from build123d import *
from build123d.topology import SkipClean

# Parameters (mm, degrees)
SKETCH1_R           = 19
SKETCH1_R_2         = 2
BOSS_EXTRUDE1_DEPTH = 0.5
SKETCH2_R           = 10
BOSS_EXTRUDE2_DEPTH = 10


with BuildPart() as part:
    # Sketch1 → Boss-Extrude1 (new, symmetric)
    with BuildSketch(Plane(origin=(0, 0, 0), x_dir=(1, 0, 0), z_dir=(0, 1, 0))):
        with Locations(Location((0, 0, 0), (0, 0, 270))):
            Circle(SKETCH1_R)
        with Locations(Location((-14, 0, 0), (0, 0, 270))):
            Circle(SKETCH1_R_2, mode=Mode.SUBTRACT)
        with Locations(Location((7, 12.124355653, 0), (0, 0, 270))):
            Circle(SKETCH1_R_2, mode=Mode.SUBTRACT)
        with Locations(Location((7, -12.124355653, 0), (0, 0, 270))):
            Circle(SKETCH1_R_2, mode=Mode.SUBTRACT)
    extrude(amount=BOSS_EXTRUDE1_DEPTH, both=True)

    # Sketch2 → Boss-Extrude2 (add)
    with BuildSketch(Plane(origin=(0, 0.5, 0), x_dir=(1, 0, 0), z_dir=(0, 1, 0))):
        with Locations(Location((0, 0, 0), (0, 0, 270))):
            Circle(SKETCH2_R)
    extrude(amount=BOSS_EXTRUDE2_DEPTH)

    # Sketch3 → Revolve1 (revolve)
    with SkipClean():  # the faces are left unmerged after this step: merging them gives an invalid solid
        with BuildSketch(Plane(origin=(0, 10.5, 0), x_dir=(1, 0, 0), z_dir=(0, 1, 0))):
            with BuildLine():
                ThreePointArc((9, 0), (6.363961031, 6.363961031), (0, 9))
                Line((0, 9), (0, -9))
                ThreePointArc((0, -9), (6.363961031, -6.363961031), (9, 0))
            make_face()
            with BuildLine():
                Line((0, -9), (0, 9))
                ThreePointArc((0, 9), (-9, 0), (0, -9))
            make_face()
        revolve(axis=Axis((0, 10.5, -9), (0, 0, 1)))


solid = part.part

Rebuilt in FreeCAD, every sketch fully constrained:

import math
import FreeCAD as App
import Part
import Sketcher
Q = App.Units.Quantity

doc = App.newDocument("Part")
body = doc.addObject("PartDesign::Body", "Body")

# Sketch on XZ plane
sketch1 = body.newObject("Sketcher::SketchObject", "Sketch")
sketch1.AttachmentSupport = (doc.getObject("XZ_Plane"), [""])
sketch1.MapMode = "FlatFace"
sketch1.addGeometry([
    Part.Circle(App.Vector(0, 0, 0), App.Vector(0, 0, 1), 19),
    Part.Circle(App.Vector(-14, 0, 0), App.Vector(0, 0, 1), 2),
    Part.Circle(App.Vector(7, -12.1, 0), App.Vector(0, 0, 1), 2),
    Part.Circle(App.Vector(7, 12.1, 0), App.Vector(0, 0, 1), 2),
], False)
sketch1.addConstraint([
    Sketcher.Constraint("Coincident", 0, 3, -1, 1),
    Sketcher.Constraint("Equal", 1, 2),
    Sketcher.Constraint("Equal", 2, 3),
    Sketcher.Constraint("Symmetric", 2, 3, 3, 3, -1),
    Sketcher.Constraint("PointOnObject", 1, 3, -1),
    Sketcher.Constraint("Diameter", 0, Q("38 mm")),
    Sketcher.Constraint("Diameter", 1, Q("4 mm")),
    Sketcher.Constraint("DistanceX", 1, 3, -1, 1, Q("14 mm")),
    Sketcher.Constraint("DistanceX", -1, 1, 2, 3, Q("7 mm")),
    Sketcher.Constraint("DistanceY", 2, 3, 3, 3, Q("24.248711 mm")),
])
pad1 = body.newObject("PartDesign::Pad", "Pad")
pad1.Profile = sketch1
pad1.Length = 1
pad1.Midplane = True

# Sketch on XZ plane
sketch2 = body.newObject("Sketcher::SketchObject", "Sketch001")
sketch2.AttachmentSupport = (doc.getObject("XZ_Plane"), [""])
sketch2.MapMode = "FlatFace"
sketch2.AttachmentOffset = App.Placement(App.Vector(0, 0, -0.5), App.Rotation())
sketch2.addGeometry(Part.Circle(App.Vector(0, 0, 0), App.Vector(0, 0, 1), 10), False)
sketch2.addConstraint([
    Sketcher.Constraint("Coincident", 0, 3, -1, 1),
    Sketcher.Constraint("Diameter", 0, Q("20 mm")),
])
pad2 = body.newObject("PartDesign::Pad", "Pad001")
pad2.Profile = sketch2
pad2.Length = 10
pad2.Reversed = True

# Sketch on XZ plane
sketch3 = body.newObject("Sketcher::SketchObject", "Sketch002")
sketch3.AttachmentSupport = (doc.getObject("XZ_Plane"), [""])
sketch3.MapMode = "FlatFace"
sketch3.AttachmentOffset = App.Placement(App.Vector(0, 0, -10.5), App.Rotation())
sketch3.addGeometry([
    Part.ArcOfCircle(Part.Circle(App.Vector(0, 0, 0), App.Vector(0, 0, 1), 9), math.radians(-90), math.radians(0)),  # 0
    Part.LineSegment(App.Vector(0, -9, 0), App.Vector(0, 9, 0)),  # 1
    Part.ArcOfCircle(Part.Circle(App.Vector(0, 0, 0), App.Vector(0, 0, 1), 9), math.radians(0), math.radians(90)),  # 2
    Part.LineSegment(App.Vector(0, 9, 0), App.Vector(0, -9, 0)),  # 3
    Part.ArcOfCircle(Part.Circle(App.Vector(0, 0, 0), App.Vector(0, 0, 1), 9), math.radians(90), math.radians(270)),  # 4
], False)
sketch3.addConstraint([
    Sketcher.Constraint("Coincident", 0, 1, 1, 1),
    Sketcher.Constraint("Coincident", 1, 2, 2, 2),
    Sketcher.Constraint("Tangent", 2, 1, 0, 2),
    Sketcher.Constraint("Coincident", 3, 1, 4, 1),
    Sketcher.Constraint("Coincident", 4, 2, 3, 2),
    Sketcher.Constraint("Vertical", 1),
    Sketcher.Constraint("Vertical", 3),
    Sketcher.Constraint("Coincident", 0, 3, -1, 1),
    Sketcher.Constraint("Coincident", 4, 3, -1, 1),
    Sketcher.Constraint("Coincident", 3, 1, 1, 2),
    Sketcher.Constraint("Equal", 0, 2),
    Sketcher.Constraint("PointOnObject", 0, 1, -2),
    Sketcher.Constraint("PointOnObject", 2, 1, -1),
    Sketcher.Constraint("Radius", 0, Q("9 mm")),
])
revolution = body.newObject("PartDesign::Revolution", "Revolution")
revolution.Profile = sketch3
revolution.ReferenceAxis = (sketch3, ["V_Axis"])
revolution.Angle = 360

doc.recompute()
